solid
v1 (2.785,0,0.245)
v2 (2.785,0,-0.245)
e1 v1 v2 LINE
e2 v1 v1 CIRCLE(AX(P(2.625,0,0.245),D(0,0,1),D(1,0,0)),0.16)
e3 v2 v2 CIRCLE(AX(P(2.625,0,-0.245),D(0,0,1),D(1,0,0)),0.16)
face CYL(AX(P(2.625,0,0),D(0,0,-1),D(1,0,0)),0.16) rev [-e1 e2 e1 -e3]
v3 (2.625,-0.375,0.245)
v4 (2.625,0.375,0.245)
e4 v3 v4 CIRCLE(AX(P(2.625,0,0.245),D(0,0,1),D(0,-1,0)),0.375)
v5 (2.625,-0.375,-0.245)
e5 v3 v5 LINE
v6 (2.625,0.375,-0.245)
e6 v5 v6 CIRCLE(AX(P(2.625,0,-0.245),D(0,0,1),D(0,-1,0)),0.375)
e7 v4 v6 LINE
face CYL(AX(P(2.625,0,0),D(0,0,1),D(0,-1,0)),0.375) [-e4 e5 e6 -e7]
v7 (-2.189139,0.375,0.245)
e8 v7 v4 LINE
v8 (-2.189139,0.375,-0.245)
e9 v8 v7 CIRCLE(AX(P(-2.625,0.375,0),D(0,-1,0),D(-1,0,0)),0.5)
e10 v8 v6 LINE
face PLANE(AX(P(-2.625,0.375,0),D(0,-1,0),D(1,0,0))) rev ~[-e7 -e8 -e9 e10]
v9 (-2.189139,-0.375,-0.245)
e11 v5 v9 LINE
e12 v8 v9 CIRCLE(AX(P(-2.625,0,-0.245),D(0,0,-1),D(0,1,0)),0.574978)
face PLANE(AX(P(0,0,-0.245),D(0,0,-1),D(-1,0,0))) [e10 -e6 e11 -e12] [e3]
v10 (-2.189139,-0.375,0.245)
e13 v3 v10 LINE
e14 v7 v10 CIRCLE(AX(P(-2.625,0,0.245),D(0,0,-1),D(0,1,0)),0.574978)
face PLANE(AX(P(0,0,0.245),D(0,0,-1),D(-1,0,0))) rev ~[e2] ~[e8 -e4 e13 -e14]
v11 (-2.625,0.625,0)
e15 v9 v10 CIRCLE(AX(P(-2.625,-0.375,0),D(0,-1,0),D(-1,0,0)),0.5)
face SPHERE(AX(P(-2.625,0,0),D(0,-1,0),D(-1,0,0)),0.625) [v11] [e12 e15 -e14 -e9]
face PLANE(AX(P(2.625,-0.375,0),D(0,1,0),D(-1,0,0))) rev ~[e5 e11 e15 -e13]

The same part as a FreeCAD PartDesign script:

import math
import FreeCAD as App
import Part
import Sketcher
Q = App.Units.Quantity

doc = App.newDocument("Part")
body = doc.addObject("PartDesign::Body", "Body")

# Sketch on XY plane
sketch1 = body.newObject("Sketcher::SketchObject", "Sketch")
sketch1.AttachmentSupport = (doc.getObject("XY_Plane"), [""])
sketch1.MapMode = "FlatFace"
sketch1.addGeometry([
    Part.LineSegment(App.Vector(2.62, 0.38, 0), App.Vector(-2.62, 0.38, 0)),  # 0
    Part.ArcOfCircle(Part.Circle(App.Vector(-2.62, 0, 0), App.Vector(0, 0, 1), 0.38), math.radians(90), math.radians(270)),  # 1
    Part.LineSegment(App.Vector(-2.62, -0.38, 0), App.Vector(2.62, -0.38, 0)),  # 2
    Part.ArcOfCircle(Part.Circle(App.Vector(2.62, 0, 0), App.Vector(0, 0, 1), 0.38), math.radians(-90), math.radians(90)),  # 3
    Part.Circle(App.Vector(2.62, 0, 0), App.Vector(0, 0, 1), 0.16),  # 4
], False)
sketch1.addConstraint([
    Sketcher.Constraint("Tangent", 0, 2, 1, 1),
    Sketcher.Constraint("Tangent", 1, 2, 2, 1),
    Sketcher.Constraint("Tangent", 2, 2, 3, 1),
    Sketcher.Constraint("Tangent", 3, 2, 0, 1),
    Sketcher.Constraint("Horizontal", 0),
    Sketcher.Constraint("Horizontal", 2),
    Sketcher.Constraint("Coincident", 4, 3, 3, 3),
    Sketcher.Constraint("Symmetric", 1, 3, 3, 3, -1, 1),
    Sketcher.Constraint("Diameter", 4, Q("0.32 mm")),
    Sketcher.Constraint("Radius", 1, Q("0.375 mm")),
    Sketcher.Constraint("DistanceX", 0, 2, 0, 1, Q("5.25 mm")),
])
pad1 = body.newObject("PartDesign::Pad", "Pad")
pad1.Profile = sketch1
pad1.Length = 0.49
pad1.Midplane = True

# Sketch on XY plane
sketch2 = body.newObject("Sketcher::SketchObject", "Sketch001")
sketch2.AttachmentSupport = (doc.getObject("XY_Plane"), [""])
sketch2.MapMode = "FlatFace"
sketch2.addGeometry([
    Part.LineSegment(App.Vector(-2.6, -0.6, 0), App.Vector(-2.6, 0.6, 0)),
    Part.ArcOfCircle(Part.Circle(App.Vector(-2.6, 0, 0), App.Vector(0, 0, 1), 0.6), math.radians(90), math.radians(270)),
], False)
sketch2.addGeometry(Part.LineSegment(App.Vector(-2.6, 0.6, 0), App.Vector(-2.6, -0.6, 0)), True)  # axis
sketch2.addConstraint([
    Sketcher.Constraint("Coincident", 0, 1, 1, 2),
    Sketcher.Constraint("Coincident", 1, 1, 0, 2),
    Sketcher.Constraint("Vertical", 0),
    Sketcher.Constraint("Vertical", 2),
    Sketcher.Constraint("Coincident", 2, 1, 1, 1),
    Sketcher.Constraint("PointOnObject", 1, 3, -1),
    Sketcher.Constraint("Vertical", 1, 3, 0, 1),
    Sketcher.Constraint("Equal", 0, 2),
    Sketcher.Constraint("Radius", 1, Q("0.625 mm")),
    Sketcher.Constraint("DistanceX", 1, 3, -1, 1, Q("2.625 mm")),
])
revolution = body.newObject("PartDesign::Revolution", "Revolution")
revolution.Profile = sketch2
revolution.ReferenceAxis = (sketch2, ["Axis0"])
revolution.Angle = 360

doc.recompute()
